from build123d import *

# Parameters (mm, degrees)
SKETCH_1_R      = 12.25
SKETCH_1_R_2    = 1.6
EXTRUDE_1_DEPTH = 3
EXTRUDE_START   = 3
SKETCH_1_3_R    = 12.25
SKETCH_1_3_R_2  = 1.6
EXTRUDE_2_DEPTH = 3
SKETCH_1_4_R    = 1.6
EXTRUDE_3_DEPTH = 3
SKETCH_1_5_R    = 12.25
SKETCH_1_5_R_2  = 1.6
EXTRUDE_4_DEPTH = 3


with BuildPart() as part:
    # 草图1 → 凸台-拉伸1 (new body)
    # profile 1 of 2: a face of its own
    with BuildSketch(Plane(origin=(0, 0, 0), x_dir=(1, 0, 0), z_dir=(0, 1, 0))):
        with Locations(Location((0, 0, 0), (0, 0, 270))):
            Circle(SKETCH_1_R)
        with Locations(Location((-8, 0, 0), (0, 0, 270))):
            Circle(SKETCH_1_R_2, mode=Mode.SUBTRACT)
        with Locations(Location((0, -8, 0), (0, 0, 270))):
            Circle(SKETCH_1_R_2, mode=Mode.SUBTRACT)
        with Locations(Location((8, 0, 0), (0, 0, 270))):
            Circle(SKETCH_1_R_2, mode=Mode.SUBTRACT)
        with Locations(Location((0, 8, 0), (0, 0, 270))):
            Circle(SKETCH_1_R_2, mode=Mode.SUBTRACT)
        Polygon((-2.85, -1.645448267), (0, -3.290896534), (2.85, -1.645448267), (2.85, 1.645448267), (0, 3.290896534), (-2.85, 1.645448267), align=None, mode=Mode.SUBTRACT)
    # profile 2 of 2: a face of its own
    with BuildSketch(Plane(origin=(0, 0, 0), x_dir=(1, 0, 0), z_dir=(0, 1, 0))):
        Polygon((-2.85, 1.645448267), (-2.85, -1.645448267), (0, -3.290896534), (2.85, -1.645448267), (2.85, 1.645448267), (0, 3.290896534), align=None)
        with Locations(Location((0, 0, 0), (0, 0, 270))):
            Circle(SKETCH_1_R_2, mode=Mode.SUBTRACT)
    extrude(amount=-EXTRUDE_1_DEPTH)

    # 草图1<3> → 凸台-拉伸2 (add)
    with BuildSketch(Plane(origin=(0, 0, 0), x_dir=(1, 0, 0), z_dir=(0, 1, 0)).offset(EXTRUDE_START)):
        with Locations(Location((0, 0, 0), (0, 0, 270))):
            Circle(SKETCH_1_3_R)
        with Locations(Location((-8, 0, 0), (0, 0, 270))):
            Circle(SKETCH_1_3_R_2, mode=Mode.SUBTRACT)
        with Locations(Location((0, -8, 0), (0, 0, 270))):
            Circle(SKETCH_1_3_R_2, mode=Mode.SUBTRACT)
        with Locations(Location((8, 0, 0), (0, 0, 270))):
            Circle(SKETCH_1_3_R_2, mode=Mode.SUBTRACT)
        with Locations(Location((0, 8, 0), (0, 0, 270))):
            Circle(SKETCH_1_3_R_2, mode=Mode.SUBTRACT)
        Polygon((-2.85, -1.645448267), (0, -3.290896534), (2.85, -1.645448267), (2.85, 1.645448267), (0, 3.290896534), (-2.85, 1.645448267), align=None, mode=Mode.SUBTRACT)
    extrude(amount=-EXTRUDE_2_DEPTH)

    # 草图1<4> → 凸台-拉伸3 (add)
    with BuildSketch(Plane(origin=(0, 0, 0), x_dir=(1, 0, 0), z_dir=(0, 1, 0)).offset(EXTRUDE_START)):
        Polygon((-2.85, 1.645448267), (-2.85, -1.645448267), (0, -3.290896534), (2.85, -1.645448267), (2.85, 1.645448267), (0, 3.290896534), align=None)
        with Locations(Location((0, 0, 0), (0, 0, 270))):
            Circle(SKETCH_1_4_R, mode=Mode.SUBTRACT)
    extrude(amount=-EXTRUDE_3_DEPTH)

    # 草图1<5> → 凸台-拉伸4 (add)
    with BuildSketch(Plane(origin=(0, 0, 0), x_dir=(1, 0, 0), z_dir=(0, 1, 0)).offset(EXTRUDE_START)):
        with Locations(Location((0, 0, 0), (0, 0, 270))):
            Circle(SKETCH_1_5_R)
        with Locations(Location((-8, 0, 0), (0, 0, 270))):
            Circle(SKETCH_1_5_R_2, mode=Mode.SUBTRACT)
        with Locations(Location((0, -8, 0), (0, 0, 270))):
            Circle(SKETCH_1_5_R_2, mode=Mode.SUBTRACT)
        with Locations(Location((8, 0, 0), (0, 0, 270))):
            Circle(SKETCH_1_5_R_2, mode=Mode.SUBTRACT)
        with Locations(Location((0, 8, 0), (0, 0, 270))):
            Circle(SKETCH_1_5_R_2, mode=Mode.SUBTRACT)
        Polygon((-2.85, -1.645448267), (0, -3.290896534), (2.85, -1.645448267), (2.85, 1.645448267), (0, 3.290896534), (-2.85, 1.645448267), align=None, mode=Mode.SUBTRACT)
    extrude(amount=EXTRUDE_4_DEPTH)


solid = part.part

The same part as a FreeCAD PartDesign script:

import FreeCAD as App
import Part
import Sketcher

V = App.Vector
Q = App.Units.Quantity

doc = App.newDocument("Part")
body = doc.addObject("PartDesign::Body", "Body")

# Sketch on XZ plane
sketch1 = body.newObject("Sketcher::SketchObject", "Sketch")
sketch1.AttachmentSupport = (doc.getObject("XZ_Plane"), [""])
sketch1.MapMode = "FlatFace"
sketch1.addGeometry([
    Part.Circle(V(0, 0, 0), V(0, 0, 1), 12.2),  # 0
    Part.Circle(V(0, -8, 0), V(0, 0, 1), 1.6),  # 1
    Part.Circle(V(-8, 0, 0), V(0, 0, 1), 1.6),  # 2
    Part.Circle(V(8, 0, 0), V(0, 0, 1), 1.6),  # 3
    Part.Circle(V(0, 8, 0), V(0, 0, 1), 1.6),  # 4
    Part.Circle(V(0, 0, 0), V(0, 0, 1), 1.6),  # 5
], False)
sketch1.addConstraint([
    Sketcher.Constraint("Coincident", 0, 3, -1, 1),
    Sketcher.Constraint("Coincident", 5, 3, -1, 1),
    Sketcher.Constraint("Equal", 1, 2),
    Sketcher.Constraint("Equal", 2, 3),
    Sketcher.Constraint("Equal", 3, 4),
    Sketcher.Constraint("Equal", 4, 5),
    Sketcher.Constraint("Symmetric", 2, 3, 3, 3, -1, 1),
    Sketcher.Constraint("Symmetric", 1, 3, 4, 3, -1, 1),
    Sketcher.Constraint("PointOnObject", 1, 3, -2),
    Sketcher.Constraint("PointOnObject", 2, 3, -1),
    Sketcher.Constraint("Diameter", 0, 24.5),
    Sketcher.Constraint("Diameter", 1, 3.2),
    Sketcher.Constraint("DistanceY", 1, 3, -1, 1, 8.0),
    Sketcher.Constraint("DistanceX", 2, 3, -1, 1, 8.0),
])
pad1 = body.newObject("PartDesign::Pad", "Pad")
pad1.Profile = sketch1
pad1.Length = 3

# Sketch on XZ plane
sketch2 = body.newObject("Sketcher::SketchObject", "Sketch001")
sketch2.AttachmentSupport = (doc.getObject("XZ_Plane"), [""])
sketch2.MapMode = "FlatFace"
sketch2.AttachmentOffset = App.Placement(V(0, 0, -3), App.Rotation())
sketch2.addGeometry([
    Part.Circle(V(0, 0, 0), V(0, 0, 1), 12.2),  # 0
    Part.Circle(V(0, -8, 0), V(0, 0, 1), 1.6),  # 1
    Part.Circle(V(-8, 0, 0), V(0, 0, 1), 1.6),  # 2
    Part.Circle(V(8, 0, 0), V(0, 0, 1), 1.6),  # 3
    Part.LineSegment(V(0, 3.3, 0), V(-2.9, 1.6, 0)),  # 4
    Part.LineSegment(V(-2.9, 1.6, 0), V(-2.9, -1.6, 0)),  # 5
    Part.LineSegment(V(-2.9, -1.6, 0), V(0, -3.3, 0)),  # 6
    Part.LineSegment(V(0, -3.3, 0), V(2.9, -1.6, 0)),  # 7
    Part.LineSegment(V(2.9, -1.6, 0), V(2.9, 1.6, 0)),  # 8
    Part.LineSegment(V(2.9, 1.6, 0), V(0, 3.3, 0)),  # 9
    Part.Circle(V(0, 8, 0), V(0, 0, 1), 1.6),  # 10
], False)
sketch2.addConstraint([
    Sketcher.Constraint("Coincident", 4, 2, 5, 1),
    Sketcher.Constraint("Coincident", 5, 2, 6, 1),
    Sketcher.Constraint("Coincident", 6, 2, 7, 1),
    Sketcher.Constraint("Coincident", 7, 2, 8, 1),
    Sketcher.Constraint("Coincident", 8, 2, 9, 1),
    Sketcher.Constraint("Coincident", 9, 2, 4, 1),
    Sketcher.Constraint("Vertical", 5),
    Sketcher.Constraint("Vertical", 8),
    Sketcher.Constraint("Coincident", 0, 3, -1, 1),
    Sketcher.Constraint("Equal", 1, 2),
    Sketcher.Constraint("Equal", 2, 3),
    Sketcher.Constraint("Equal", 3, 10),
    Sketcher.Constraint("Symmetric", 2, 3, 3, 3, -1, 1),
    Sketcher.Constraint("Symmetric", 1, 3, 10, 3, -1, 1),
    Sketcher.Constraint("Symmetric", 4, 2, 7, 2, -1, 1),
    Sketcher.Constraint("Symmetric", 6, 2, 9, 2, -1, 1),
    Sketcher.Constraint("PointOnObject", 1, 3, -2),
    Sketcher.Constraint("PointOnObject", 2, 3, -1),
    Sketcher.Constraint("PointOnObject", 6, 2, -2),
    Sketcher.Constraint("Parallel", 6, 9),
    Sketcher.Constraint("Horizontal", 5, 2, 7, 2),
    Sketcher.Constraint("Diameter", 0, 24.5),
    Sketcher.Constraint("Diameter", 1, 3.2),
    Sketcher.Constraint("Angle", 4, Q("-150 deg")),
    Sketcher.Constraint("DistanceY", 1, 3, -1, 1, 8.0),
    Sketcher.Constraint("DistanceX", 2, 3, -1, 1, 8.0),
    Sketcher.Constraint("DistanceX", 5, 2, 7, 2, 5.7),
    Sketcher.Constraint("DistanceY", 5, 2, 5, 1, 3.290897),
])
pad2 = body.newObject("PartDesign::Pad", "Pad001")
pad2.Profile = sketch2
pad2.Length = 3

# Sketch on XZ plane
sketch3 = body.newObject("Sketcher::SketchObject", "Sketch002")
sketch3.AttachmentSupport = (doc.getObject("XZ_Plane"), [""])
sketch3.MapMode = "FlatFace"
sketch3.AttachmentOffset = App.Placement(V(0, 0, -3), App.Rotation())
sketch3.addGeometry([
    Part.LineSegment(V(-2.9, -1.6, 0), V(-2.9, 1.6, 0)),  # 0
    Part.LineSegment(V(-2.9, 1.6, 0), V(0, 3.3, 0)),  # 1
    Part.LineSegment(V(0, 3.3, 0), V(2.9, 1.6, 0)),  # 2
    Part.LineSegment(V(2.9, 1.6, 0), V(2.9, -1.6, 0)),  # 3
    Part.LineSegment(V(2.9, -1.6, 0), V(0, -3.3, 0)),  # 4
    Part.LineSegment(V(0, -3.3, 0), V(-2.9, -1.6, 0)),  # 5
    Part.Circle(V(0, 0, 0), V(0, 0, 1), 1.6),  # 6
], False)
sketch3.addConstraint([
    Sketcher.Constraint("Coincident", 0, 2, 1, 1),
    Sketcher.Constraint("Coincident", 1, 2, 2, 1),
    Sketcher.Constraint("Coincident", 2, 2, 3, 1),
    Sketcher.Constraint("Coincident", 3, 2, 4, 1),
    Sketcher.Constraint("Coincident", 4, 2, 5, 1),
    Sketcher.Constraint("Coincident", 5, 2, 0, 1),
    Sketcher.Constraint("Vertical", 0),
    Sketcher.Constraint("Vertical", 3),
    Sketcher.Constraint("Coincident", 6, 3, -1, 1),
    Sketcher.Constraint("Symmetric", 0, 2, 3, 2, -1, 1),
    Sketcher.Constraint("Symmetric", 1, 2, 4, 2, -1, 1),
    Sketcher.Constraint("PointOnObject", 1, 2, -2),
    Sketcher.Constraint("Parallel", 2, 5),
    Sketcher.Constraint("Horizontal", 0, 2, 2, 2),
    Sketcher.Constraint("Diameter", 6, 3.2),
    Sketcher.Constraint("Angle", 1, Q("30 deg")),
    Sketcher.Constraint("DistanceX", 0, 2, 2, 2, 5.7),
    Sketcher.Constraint("DistanceY", 0, 1, 0, 2, 3.290897),
])
pad3 = body.newObject("PartDesign::Pad", "Pad002")
pad3.Profile = sketch3
pad3.Length = 3

# Sketch on XZ plane
sketch4 = body.newObject("Sketcher::SketchObject", "Sketch003")
sketch4.AttachmentSupport = (doc.getObject("XZ_Plane"), [""])
sketch4.MapMode = "FlatFace"
sketch4.AttachmentOffset = App.Placement(V(0, 0, -3), App.Rotation())
sketch4.addGeometry([
    Part.Circle(V(0, 0, 0), V(0, 0, 1), 12.2),  # 0
    Part.Circle(V(0, -8, 0), V(0, 0, 1), 1.6),  # 1
    Part.Circle(V(-8, 0, 0), V(0, 0, 1), 1.6),  # 2
    Part.Circle(V(8, 0, 0), V(0, 0, 1), 1.6),  # 3
    Part.LineSegment(V(0, 3.3, 0), V(-2.9, 1.6, 0)),  # 4
    Part.LineSegment(V(-2.9, 1.6, 0), V(-2.9, -1.6, 0)),  # 5
    Part.LineSegment(V(-2.9, -1.6, 0), V(0, -3.3, 0)),  # 6
    Part.LineSegment(V(0, -3.3, 0), V(2.9, -1.6, 0)),  # 7
    Part.LineSegment(V(2.9, -1.6, 0), V(2.9, 1.6, 0)),  # 8
    Part.LineSegment(V(2.9, 1.6, 0), V(0, 3.3, 0)),  # 9
    Part.Circle(V(0, 8, 0), V(0, 0, 1), 1.6),  # 10
], False)
sketch4.addConstraint([
    Sketcher.Constraint("Coincident", 4, 2, 5, 1),
    Sketcher.Constraint("Coincident", 5, 2, 6, 1),
    Sketcher.Constraint("Coincident", 6, 2, 7, 1),
    Sketcher.Constraint("Coincident", 7, 2, 8, 1),
    Sketcher.Constraint("Coincident", 8, 2, 9, 1),
    Sketcher.Constraint("Coincident", 9, 2, 4, 1),
    Sketcher.Constraint("Vertical", 5),
    Sketcher.Constraint("Vertical", 8),
    Sketcher.Constraint("Coincident", 0, 3, -1, 1),
    Sketcher.Constraint("Equal", 1, 2),
    Sketcher.Constraint("Equal", 2, 3),
    Sketcher.Constraint("Equal", 3, 10),
    Sketcher.Constraint("Symmetric", 2, 3, 3, 3, -1, 1),
    Sketcher.Constraint("Symmetric", 1, 3, 10, 3, -1, 1),
    Sketcher.Constraint("Symmetric", 4, 2, 7, 2, -1, 1),
    Sketcher.Constraint("Symmetric", 6, 2, 9, 2, -1, 1),
    Sketcher.Constraint("PointOnObject", 1, 3, -2),
    Sketcher.Constraint("PointOnObject", 2, 3, -1),
    Sketcher.Constraint("PointOnObject", 6, 2, -2),
    Sketcher.Constraint("Parallel", 6, 9),
    Sketcher.Constraint("Horizontal", 5, 2, 7, 2),
    Sketcher.Constraint("Diameter", 0, 24.5),
    Sketcher.Constraint("Diameter", 1, 3.2),
    Sketcher.Constraint("Angle", 4, Q("-150 deg")),
    Sketcher.Constraint("DistanceY", 1, 3, -1, 1, 8.0),
    Sketcher.Constraint("DistanceX", 2, 3, -1, 1, 8.0),
    Sketcher.Constraint("DistanceX", 5, 2, 7, 2, 5.7),
    Sketcher.Constraint("DistanceY", 5, 2, 5, 1, 3.290897),
])
pad4 = body.newObject("PartDesign::Pad", "Pad003")
pad4.Profile = sketch4
pad4.Length = 3
pad4.Reversed = True

doc.recompute()
